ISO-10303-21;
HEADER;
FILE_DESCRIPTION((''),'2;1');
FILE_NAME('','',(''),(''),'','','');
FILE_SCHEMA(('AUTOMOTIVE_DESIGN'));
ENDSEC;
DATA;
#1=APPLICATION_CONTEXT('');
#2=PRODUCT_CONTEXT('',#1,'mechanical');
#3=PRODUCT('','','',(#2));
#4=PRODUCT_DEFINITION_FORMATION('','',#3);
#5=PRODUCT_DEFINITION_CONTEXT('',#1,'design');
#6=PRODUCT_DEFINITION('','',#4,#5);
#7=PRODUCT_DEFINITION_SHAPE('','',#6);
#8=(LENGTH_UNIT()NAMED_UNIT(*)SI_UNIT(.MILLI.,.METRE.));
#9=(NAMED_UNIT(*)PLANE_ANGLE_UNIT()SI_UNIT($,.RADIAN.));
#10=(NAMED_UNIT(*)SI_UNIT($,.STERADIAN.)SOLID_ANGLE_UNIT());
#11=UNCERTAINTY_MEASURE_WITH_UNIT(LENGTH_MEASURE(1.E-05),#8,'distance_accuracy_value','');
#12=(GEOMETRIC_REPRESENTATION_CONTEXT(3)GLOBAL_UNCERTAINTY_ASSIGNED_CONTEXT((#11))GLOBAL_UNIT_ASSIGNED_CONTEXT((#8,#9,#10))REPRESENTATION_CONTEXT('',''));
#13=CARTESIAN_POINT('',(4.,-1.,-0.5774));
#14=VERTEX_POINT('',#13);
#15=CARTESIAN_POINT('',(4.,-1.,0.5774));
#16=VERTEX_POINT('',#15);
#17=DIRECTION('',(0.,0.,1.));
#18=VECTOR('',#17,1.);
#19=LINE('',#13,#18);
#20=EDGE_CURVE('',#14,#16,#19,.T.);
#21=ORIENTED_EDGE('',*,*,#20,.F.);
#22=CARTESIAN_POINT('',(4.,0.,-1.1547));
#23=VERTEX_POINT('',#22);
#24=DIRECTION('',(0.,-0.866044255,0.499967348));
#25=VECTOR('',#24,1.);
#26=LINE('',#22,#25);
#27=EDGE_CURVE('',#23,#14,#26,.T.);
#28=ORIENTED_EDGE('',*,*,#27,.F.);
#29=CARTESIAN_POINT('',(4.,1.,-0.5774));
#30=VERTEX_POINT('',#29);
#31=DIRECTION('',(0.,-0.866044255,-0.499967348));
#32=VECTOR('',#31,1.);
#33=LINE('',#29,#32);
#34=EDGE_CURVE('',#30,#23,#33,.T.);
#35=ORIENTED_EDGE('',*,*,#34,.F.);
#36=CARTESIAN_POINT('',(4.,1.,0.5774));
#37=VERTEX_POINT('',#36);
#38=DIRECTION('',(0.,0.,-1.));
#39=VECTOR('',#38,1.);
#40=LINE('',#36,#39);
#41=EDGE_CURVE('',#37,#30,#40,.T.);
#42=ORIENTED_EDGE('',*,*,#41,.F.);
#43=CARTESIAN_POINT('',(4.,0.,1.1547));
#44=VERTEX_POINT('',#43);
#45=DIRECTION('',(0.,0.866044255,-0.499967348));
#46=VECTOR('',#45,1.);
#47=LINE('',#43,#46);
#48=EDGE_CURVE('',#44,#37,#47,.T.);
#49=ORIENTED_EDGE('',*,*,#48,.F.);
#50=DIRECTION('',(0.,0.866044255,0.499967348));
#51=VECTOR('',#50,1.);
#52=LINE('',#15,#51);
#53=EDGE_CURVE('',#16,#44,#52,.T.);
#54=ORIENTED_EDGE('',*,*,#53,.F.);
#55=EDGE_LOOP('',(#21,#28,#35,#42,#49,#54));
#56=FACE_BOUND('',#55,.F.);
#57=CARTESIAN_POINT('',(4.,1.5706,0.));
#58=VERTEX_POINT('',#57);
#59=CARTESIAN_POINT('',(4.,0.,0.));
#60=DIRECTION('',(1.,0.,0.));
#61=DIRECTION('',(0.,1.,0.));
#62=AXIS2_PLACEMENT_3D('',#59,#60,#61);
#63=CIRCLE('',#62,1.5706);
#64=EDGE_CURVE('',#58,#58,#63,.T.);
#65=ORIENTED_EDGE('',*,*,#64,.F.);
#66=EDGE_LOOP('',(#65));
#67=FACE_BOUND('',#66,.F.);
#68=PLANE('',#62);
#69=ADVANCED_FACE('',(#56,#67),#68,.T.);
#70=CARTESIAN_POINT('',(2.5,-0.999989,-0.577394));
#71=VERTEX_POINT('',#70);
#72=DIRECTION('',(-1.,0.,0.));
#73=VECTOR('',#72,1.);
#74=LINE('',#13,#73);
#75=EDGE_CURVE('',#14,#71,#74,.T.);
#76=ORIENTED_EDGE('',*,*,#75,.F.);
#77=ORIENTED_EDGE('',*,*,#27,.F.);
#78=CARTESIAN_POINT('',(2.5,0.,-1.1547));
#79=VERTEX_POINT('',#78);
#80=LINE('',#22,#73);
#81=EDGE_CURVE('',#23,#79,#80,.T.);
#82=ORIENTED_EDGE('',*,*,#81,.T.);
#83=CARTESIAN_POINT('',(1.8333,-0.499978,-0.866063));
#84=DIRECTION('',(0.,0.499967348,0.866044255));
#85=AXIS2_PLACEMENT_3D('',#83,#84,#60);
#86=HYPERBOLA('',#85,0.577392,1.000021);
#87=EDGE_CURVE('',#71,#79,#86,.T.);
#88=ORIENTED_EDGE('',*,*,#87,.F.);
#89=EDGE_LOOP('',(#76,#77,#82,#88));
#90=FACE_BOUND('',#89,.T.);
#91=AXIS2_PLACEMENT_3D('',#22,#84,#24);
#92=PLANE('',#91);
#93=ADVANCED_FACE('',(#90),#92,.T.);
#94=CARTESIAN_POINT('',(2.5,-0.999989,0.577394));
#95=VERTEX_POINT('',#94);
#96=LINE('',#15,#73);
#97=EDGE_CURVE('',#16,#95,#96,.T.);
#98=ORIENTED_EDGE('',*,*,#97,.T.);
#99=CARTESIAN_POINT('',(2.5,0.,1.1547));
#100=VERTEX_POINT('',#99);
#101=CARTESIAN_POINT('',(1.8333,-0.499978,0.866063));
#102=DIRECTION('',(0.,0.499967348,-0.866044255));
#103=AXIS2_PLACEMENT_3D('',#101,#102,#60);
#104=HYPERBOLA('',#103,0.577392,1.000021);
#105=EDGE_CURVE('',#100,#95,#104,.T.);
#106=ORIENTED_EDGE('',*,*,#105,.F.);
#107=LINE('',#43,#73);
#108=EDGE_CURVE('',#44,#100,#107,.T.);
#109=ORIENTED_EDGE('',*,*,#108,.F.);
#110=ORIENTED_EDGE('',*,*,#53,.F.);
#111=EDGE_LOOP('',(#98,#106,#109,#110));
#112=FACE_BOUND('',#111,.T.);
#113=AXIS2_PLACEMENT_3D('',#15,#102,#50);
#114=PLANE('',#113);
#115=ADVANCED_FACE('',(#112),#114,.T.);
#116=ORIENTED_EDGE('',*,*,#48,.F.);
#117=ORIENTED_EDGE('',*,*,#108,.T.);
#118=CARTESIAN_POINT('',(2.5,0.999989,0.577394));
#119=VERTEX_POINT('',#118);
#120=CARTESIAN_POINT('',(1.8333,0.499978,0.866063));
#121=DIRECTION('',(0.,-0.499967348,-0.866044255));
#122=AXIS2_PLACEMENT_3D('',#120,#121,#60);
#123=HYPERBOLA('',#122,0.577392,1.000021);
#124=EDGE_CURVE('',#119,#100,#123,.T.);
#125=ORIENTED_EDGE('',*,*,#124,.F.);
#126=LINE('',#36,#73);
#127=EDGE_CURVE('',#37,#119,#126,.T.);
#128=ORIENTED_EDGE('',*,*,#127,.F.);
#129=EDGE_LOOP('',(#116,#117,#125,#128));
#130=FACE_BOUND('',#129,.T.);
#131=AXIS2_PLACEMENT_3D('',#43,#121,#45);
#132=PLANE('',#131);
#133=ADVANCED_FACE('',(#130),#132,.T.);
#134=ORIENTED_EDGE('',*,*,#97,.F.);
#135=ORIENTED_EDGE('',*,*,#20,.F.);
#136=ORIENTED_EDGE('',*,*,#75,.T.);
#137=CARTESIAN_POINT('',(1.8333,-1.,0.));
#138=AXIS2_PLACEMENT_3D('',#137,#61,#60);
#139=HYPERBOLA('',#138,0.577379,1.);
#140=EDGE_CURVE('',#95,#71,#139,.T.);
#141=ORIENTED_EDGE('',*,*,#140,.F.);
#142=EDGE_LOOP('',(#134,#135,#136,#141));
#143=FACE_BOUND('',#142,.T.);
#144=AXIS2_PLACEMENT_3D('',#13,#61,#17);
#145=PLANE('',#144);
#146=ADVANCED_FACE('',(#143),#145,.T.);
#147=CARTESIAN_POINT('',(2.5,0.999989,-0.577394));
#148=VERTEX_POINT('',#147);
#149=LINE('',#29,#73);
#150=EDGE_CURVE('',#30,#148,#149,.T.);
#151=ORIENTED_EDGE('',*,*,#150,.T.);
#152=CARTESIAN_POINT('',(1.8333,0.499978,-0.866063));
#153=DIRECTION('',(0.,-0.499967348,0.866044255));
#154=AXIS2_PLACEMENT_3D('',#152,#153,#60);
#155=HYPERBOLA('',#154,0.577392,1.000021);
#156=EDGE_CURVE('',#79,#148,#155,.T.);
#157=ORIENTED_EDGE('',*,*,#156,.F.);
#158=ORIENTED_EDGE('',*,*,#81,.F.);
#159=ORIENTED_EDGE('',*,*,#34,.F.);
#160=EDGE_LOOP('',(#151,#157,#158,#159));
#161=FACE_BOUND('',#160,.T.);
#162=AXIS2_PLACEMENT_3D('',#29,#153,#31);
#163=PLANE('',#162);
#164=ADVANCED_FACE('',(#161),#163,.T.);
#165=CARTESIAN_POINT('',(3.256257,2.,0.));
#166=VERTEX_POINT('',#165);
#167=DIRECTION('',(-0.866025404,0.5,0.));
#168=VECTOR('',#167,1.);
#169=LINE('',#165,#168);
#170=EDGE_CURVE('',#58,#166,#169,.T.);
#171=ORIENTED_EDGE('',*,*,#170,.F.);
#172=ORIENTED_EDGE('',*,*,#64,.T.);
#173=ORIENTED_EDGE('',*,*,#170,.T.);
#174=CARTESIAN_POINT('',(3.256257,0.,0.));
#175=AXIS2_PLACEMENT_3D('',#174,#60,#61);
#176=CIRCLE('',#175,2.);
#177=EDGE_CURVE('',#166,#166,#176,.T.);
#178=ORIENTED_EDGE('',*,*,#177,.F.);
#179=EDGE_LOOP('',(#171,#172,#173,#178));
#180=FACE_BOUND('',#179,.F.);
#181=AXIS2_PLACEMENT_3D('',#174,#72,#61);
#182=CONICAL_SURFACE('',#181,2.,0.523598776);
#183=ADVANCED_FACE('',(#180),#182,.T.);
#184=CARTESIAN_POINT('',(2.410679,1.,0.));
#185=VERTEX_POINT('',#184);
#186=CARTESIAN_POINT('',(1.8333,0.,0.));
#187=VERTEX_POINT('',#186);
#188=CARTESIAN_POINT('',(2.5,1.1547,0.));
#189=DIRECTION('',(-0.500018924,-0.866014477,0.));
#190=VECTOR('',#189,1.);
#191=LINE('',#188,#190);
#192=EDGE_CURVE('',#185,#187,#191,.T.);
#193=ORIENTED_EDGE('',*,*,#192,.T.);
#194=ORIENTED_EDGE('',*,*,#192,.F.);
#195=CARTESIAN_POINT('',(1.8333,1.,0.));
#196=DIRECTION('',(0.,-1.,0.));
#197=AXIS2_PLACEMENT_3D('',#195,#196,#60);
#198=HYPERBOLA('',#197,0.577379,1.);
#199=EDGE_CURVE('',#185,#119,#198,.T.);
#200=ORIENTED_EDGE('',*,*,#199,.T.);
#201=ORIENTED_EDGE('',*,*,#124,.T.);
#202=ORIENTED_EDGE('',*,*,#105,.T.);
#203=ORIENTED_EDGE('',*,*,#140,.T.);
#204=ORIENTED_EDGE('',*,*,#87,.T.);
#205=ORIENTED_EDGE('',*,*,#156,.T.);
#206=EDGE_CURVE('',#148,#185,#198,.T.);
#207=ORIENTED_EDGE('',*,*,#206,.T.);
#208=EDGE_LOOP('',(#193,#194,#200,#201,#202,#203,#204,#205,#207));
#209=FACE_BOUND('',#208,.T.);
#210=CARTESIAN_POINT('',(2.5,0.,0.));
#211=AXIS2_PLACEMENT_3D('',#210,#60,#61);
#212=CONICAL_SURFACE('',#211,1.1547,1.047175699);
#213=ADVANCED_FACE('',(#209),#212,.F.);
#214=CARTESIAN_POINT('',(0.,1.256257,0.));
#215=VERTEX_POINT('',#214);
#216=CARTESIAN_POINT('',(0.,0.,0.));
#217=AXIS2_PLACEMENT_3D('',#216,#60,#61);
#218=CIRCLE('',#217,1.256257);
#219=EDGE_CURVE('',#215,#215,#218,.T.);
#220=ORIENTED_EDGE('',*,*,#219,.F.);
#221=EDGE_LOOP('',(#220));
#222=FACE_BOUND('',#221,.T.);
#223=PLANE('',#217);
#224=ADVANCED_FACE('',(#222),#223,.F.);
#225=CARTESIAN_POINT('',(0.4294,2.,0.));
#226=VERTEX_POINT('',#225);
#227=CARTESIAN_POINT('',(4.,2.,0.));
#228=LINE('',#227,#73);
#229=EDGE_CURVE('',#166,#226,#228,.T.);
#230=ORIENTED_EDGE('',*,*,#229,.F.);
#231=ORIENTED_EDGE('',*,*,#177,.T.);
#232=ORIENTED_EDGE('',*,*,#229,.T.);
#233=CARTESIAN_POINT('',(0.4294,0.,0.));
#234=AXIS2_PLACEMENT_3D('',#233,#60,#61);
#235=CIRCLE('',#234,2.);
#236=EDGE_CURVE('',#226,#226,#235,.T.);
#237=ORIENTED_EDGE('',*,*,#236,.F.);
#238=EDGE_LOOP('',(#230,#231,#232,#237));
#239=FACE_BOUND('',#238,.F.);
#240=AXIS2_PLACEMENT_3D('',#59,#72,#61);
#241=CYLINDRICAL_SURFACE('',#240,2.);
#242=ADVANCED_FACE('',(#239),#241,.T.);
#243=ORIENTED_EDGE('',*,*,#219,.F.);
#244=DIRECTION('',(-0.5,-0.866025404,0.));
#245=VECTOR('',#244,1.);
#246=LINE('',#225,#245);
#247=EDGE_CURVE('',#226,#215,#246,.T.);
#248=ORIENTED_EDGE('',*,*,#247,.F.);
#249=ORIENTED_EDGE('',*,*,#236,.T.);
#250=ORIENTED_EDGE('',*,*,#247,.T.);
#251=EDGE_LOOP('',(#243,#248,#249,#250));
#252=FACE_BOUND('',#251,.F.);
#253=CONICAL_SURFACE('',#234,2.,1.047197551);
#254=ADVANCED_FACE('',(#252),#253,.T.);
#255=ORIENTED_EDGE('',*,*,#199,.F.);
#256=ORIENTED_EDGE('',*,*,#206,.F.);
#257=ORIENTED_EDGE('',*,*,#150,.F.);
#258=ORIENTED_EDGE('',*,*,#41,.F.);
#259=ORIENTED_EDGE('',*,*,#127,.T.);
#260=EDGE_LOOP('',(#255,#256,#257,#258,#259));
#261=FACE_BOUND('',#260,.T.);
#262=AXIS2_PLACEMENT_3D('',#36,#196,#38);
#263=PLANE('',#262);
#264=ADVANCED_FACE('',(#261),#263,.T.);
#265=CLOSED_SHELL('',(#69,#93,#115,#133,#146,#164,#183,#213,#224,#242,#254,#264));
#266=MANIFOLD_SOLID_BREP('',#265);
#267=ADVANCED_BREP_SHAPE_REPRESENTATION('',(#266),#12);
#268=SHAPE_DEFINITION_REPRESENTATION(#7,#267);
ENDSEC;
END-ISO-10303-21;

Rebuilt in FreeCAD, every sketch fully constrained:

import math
import FreeCAD as App
import Part
import Sketcher
Q = App.Units.Quantity


def edges_at(feature, points):
    """Names of the edges that pass closest to the given points."""
    edges = feature.Shape.Edges
    near = lambda p: min(range(len(edges)), key=lambda i: edges[i].distToShape(Part.Vertex(*p))[0])
    return sorted({f"Edge{near(p) + 1}" for p in points})

doc = App.newDocument("Part")
body = doc.addObject("PartDesign::Body", "Body")

sketch1 = body.newObject("Sketcher::SketchObject", "Sketch")
sketch1.AttachmentSupport = (doc.getObject("XY_Plane"), [""])
sketch1.MapMode = "FlatFace"
sketch1.addGeometry([
    Part.LineSegment(App.Vector(0, 2, 0), App.Vector(0, 0, 0)),
    Part.LineSegment(App.Vector(0, 0, 0), App.Vector(1.8, 0, 0)),
    Part.LineSegment(App.Vector(1.8, 0, 0), App.Vector(2.5, 1.2, 0)),
    Part.LineSegment(App.Vector(2.5, 1.2, 0), App.Vector(4, 1.2, 0)),
    Part.LineSegment(App.Vector(4, 1.2, 0), App.Vector(4, 2, 0)),
    Part.LineSegment(App.Vector(4, 2, 0), App.Vector(0, 2, 0)),
], False)
sketch1.addConstraint([
    Sketcher.Constraint("Coincident", 0, 2, 1, 1),
    Sketcher.Constraint("Coincident", 1, 2, 2, 1),
    Sketcher.Constraint("Coincident", 2, 2, 3, 1),
    Sketcher.Constraint("Coincident", 3, 2, 4, 1),
    Sketcher.Constraint("Coincident", 4, 2, 5, 1),
    Sketcher.Constraint("Coincident", 5, 2, 0, 1),
    Sketcher.Constraint("Vertical", 0),
    Sketcher.Constraint("Horizontal", 1),
    Sketcher.Constraint("Horizontal", 3),
    Sketcher.Constraint("Vertical", 4),
    Sketcher.Constraint("Horizontal", 5),
    Sketcher.Constraint("Coincident", 0, 2, -1, 1),
    Sketcher.Constraint("DistanceX", 5, 2, 5, 1, Q("4 mm")),
    Sketcher.Constraint("DistanceX", 3, 1, 3, 2, Q("1.5 mm")),
    Sketcher.Constraint("DistanceY", 0, 2, 0, 1, Q("2 mm")),
    Sketcher.Constraint("DistanceX", 1, 1, 1, 2, Q("1.8333 mm")),
    Sketcher.Constraint("DistanceY", 4, 1, 4, 2, Q("0.8453 mm")),
])
revolution = body.newObject("PartDesign::Revolution", "Revolution")
revolution.Profile = sketch1
revolution.ReferenceAxis = (sketch1, ["H_Axis"])
revolution.Angle = 360
doc.recompute()

chamfer = body.newObject("PartDesign::Chamfer", "Chamfer")
chamfer.Base = (revolution, edges_at(revolution, [(4, -2, 0)]))
chamfer.ChamferType = "Distance and Angle"
chamfer.Size = 0.4294
chamfer.Angle = 60

sketch2 = body.newObject("Sketcher::SketchObject", "Sketch001")
sketch2.AttachmentSupport = (doc.getObject("YZ_Plane"), [""])
sketch2.MapMode = "FlatFace"
sketch2.AttachmentOffset = App.Placement(App.Vector(0, 0, 4), App.Rotation())
sketch2.addGeometry([
    Part.LineSegment(App.Vector(1, -0.6, 0), App.Vector(0, -1.2, 0)),
    Part.ArcOfCircle(Part.Circle(App.Vector(0, 0, 0), App.Vector(0, 0, 1), 1.2), math.radians(-90), math.radians(-30)),
    Part.ArcOfCircle(Part.Circle(App.Vector(0, 0, 0), App.Vector(0, 0, 1), 1.2), math.radians(-150), math.radians(-90)),
    Part.LineSegment(App.Vector(0, -1.2, 0), App.Vector(-1, -0.6, 0)),
    Part.LineSegment(App.Vector(1, 0.6, 0), App.Vector(1, -0.6, 0)),
    Part.ArcOfCircle(Part.Circle(App.Vector(0, 0, 0), App.Vector(0, 0, 1), 1.2), math.radians(-30), math.radians(30)),
    Part.ArcOfCircle(Part.Circle(App.Vector(0, 0, 0), App.Vector(0, 0, 1), 1.2), math.radians(150), math.radians(210)),
    Part.LineSegment(App.Vector(-1, 0.6, 0), App.Vector(-1, -0.6, 0)),
    Part.LineSegment(App.Vector(0, 1.2, 0), App.Vector(1, 0.6, 0)),
    Part.ArcOfCircle(Part.Circle(App.Vector(0, 0, 0), App.Vector(0, 0, 1), 1.2), math.radians(30), math.radians(90)),
    Part.ArcOfCircle(Part.Circle(App.Vector(0, 0, 0), App.Vector(0, 0, 1), 1.2), math.radians(90), math.radians(150)),
    Part.LineSegment(App.Vector(0, 1.2, 0), App.Vector(-1, 0.6, 0)),
], False)
sketch2.addConstraint([
    Sketcher.Constraint("Coincident", 0, 1, 1, 2),
    Sketcher.Constraint("Coincident", 1, 1, 0, 2),
    Sketcher.Constraint("Coincident", 2, 1, 3, 2),
    Sketcher.Constraint("Coincident", 3, 1, 2, 2),
    Sketcher.Constraint("Coincident", 4, 1, 5, 2),
    Sketcher.Constraint("Coincident", 5, 1, 4, 2),
    Sketcher.Constraint("Coincident", 6, 1, 7, 1),
    Sketcher.Constraint("Coincident", 7, 2, 6, 2),
    Sketcher.Constraint("Coincident", 8, 1, 9, 2),
    Sketcher.Constraint("Coincident", 9, 1, 8, 2),
    Sketcher.Constraint("Coincident", 10, 1, 11, 1),
    Sketcher.Constraint("Coincident", 11, 2, 10, 2),
    Sketcher.Constraint("Vertical", 4),
    Sketcher.Constraint("Vertical", 7),
    Sketcher.Constraint("Coincident", 1, 3, -1, 1),
    Sketcher.Constraint("Coincident", 2, 3, -1, 1),
    Sketcher.Constraint("Coincident", 5, 3, -1, 1),
    Sketcher.Constraint("Coincident", 6, 3, -1, 1),
    Sketcher.Constraint("Coincident", 9, 3, -1, 1),
    Sketcher.Constraint("Coincident", 10, 3, -1, 1),
    Sketcher.Constraint("Coincident", 3, 1, 1, 1),
    Sketcher.Constraint("Coincident", 5, 1, 0, 1),
    Sketcher.Constraint("Coincident", 7, 2, 2, 1),
    Sketcher.Constraint("Coincident", 9, 1, 4, 1),
    Sketcher.Constraint("Coincident", 10, 1, 8, 1),
    Sketcher.Constraint("PointOnObject", 1, 1, -2),
    Sketcher.Constraint("PointOnObject", 8, 1, -2),
    Sketcher.Constraint("Parallel", 3, 8),
    Sketcher.Constraint("Parallel", 0, 11),
    Sketcher.Constraint("DistanceX", -1, 1, 0, 1, Q("1 mm")),
    Sketcher.Constraint("Radius", 1, Q("1.1547 mm")),
])
pad1 = body.newObject("PartDesign::Pad", "Pad")
pad1.Profile = sketch2
pad1.Type = "UpToFirst"
pad1.Reversed = True
doc.recompute()

chamfer2 = body.newObject("PartDesign::Chamfer", "Chamfer001")
chamfer2.Base = (pad1, edges_at(pad1, [(0, -2, 0)]))
chamfer2.ChamferType = "Distance and Angle"
chamfer2.Size = 0.4294
chamfer2.Angle = 60

doc.recompute()
